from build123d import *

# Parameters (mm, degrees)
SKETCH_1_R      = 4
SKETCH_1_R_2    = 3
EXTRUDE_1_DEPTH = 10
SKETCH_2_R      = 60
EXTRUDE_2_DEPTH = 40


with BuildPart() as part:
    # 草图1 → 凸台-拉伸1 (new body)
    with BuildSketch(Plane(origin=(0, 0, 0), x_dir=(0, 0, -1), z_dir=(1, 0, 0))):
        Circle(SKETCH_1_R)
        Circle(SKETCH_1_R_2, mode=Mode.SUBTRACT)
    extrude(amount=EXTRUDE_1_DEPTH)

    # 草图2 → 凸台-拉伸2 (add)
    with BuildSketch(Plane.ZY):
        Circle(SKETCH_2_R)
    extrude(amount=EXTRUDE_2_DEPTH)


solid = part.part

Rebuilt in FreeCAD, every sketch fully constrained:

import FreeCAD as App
import Part
import Sketcher
from FreeCAD import Vector

doc = App.newDocument("Part")
params = doc.addObject("Spreadsheet::Sheet", "Params")
for row, (alias, value) in enumerate([
    ("sketch1_diameter", "8 mm"),
    ("sketch1_diameter2", "6 mm"),
    ("pad1_length", "10 mm"),
    ("sketch2_diameter", "120 mm"),
    ("pad2_length", "40 mm"),
], start=1):
    params.set(f"A{row}", alias)
    params.set(f"B{row}", "=" + value)
    params.setAlias(f"B{row}", alias)

body = doc.addObject("PartDesign::Body", "Body")

sketch1 = body.newObject("Sketcher::SketchObject", "Sketch")
sketch1.AttachmentSupport = (doc.getObject("YZ_Plane"), [""])
sketch1.MapMode = "FlatFace"
sketch1.addGeometry([
    Part.Circle(Vector(0, 0, 0), Vector(0, 0, 1), 4),
    Part.Circle(Vector(0, 0, 0), Vector(0, 0, 1), 3),
], False)
sketch1.addConstraint([
    Sketcher.Constraint("Coincident", 0, 3, -1, 1),
    Sketcher.Constraint("Coincident", 1, 3, -1, 1),
    Sketcher.Constraint("Diameter", 0, 8.0),
    Sketcher.Constraint("Diameter", 1, 6.0),
])
sketch1.setExpression("Constraints[2]", "Params.sketch1_diameter")
sketch1.setExpression("Constraints[3]", "Params.sketch1_diameter2")
pad1 = body.newObject("PartDesign::Pad", "Pad")
pad1.Profile = sketch1
pad1.setExpression("Length", "Params.pad1_length")

sketch2 = body.newObject("Sketcher::SketchObject", "Sketch001")
sketch2.AttachmentSupport = (doc.getObject("YZ_Plane"), [""])
sketch2.MapMode = "FlatFace"
sketch2.addGeometry(Part.Circle(Vector(0, 0, 0), Vector(0, 0, 1), 60), False)
sketch2.addConstraint([
    Sketcher.Constraint("Coincident", 0, 3, -1, 1),
    Sketcher.Constraint("Diameter", 0, 120.0),
])
sketch2.setExpression("Constraints[1]", "Params.sketch2_diameter")
pad2 = body.newObject("PartDesign::Pad", "Pad001")
pad2.Profile = sketch2
pad2.setExpression("Length", "Params.pad2_length")
pad2.Reversed = True

doc.recompute()
